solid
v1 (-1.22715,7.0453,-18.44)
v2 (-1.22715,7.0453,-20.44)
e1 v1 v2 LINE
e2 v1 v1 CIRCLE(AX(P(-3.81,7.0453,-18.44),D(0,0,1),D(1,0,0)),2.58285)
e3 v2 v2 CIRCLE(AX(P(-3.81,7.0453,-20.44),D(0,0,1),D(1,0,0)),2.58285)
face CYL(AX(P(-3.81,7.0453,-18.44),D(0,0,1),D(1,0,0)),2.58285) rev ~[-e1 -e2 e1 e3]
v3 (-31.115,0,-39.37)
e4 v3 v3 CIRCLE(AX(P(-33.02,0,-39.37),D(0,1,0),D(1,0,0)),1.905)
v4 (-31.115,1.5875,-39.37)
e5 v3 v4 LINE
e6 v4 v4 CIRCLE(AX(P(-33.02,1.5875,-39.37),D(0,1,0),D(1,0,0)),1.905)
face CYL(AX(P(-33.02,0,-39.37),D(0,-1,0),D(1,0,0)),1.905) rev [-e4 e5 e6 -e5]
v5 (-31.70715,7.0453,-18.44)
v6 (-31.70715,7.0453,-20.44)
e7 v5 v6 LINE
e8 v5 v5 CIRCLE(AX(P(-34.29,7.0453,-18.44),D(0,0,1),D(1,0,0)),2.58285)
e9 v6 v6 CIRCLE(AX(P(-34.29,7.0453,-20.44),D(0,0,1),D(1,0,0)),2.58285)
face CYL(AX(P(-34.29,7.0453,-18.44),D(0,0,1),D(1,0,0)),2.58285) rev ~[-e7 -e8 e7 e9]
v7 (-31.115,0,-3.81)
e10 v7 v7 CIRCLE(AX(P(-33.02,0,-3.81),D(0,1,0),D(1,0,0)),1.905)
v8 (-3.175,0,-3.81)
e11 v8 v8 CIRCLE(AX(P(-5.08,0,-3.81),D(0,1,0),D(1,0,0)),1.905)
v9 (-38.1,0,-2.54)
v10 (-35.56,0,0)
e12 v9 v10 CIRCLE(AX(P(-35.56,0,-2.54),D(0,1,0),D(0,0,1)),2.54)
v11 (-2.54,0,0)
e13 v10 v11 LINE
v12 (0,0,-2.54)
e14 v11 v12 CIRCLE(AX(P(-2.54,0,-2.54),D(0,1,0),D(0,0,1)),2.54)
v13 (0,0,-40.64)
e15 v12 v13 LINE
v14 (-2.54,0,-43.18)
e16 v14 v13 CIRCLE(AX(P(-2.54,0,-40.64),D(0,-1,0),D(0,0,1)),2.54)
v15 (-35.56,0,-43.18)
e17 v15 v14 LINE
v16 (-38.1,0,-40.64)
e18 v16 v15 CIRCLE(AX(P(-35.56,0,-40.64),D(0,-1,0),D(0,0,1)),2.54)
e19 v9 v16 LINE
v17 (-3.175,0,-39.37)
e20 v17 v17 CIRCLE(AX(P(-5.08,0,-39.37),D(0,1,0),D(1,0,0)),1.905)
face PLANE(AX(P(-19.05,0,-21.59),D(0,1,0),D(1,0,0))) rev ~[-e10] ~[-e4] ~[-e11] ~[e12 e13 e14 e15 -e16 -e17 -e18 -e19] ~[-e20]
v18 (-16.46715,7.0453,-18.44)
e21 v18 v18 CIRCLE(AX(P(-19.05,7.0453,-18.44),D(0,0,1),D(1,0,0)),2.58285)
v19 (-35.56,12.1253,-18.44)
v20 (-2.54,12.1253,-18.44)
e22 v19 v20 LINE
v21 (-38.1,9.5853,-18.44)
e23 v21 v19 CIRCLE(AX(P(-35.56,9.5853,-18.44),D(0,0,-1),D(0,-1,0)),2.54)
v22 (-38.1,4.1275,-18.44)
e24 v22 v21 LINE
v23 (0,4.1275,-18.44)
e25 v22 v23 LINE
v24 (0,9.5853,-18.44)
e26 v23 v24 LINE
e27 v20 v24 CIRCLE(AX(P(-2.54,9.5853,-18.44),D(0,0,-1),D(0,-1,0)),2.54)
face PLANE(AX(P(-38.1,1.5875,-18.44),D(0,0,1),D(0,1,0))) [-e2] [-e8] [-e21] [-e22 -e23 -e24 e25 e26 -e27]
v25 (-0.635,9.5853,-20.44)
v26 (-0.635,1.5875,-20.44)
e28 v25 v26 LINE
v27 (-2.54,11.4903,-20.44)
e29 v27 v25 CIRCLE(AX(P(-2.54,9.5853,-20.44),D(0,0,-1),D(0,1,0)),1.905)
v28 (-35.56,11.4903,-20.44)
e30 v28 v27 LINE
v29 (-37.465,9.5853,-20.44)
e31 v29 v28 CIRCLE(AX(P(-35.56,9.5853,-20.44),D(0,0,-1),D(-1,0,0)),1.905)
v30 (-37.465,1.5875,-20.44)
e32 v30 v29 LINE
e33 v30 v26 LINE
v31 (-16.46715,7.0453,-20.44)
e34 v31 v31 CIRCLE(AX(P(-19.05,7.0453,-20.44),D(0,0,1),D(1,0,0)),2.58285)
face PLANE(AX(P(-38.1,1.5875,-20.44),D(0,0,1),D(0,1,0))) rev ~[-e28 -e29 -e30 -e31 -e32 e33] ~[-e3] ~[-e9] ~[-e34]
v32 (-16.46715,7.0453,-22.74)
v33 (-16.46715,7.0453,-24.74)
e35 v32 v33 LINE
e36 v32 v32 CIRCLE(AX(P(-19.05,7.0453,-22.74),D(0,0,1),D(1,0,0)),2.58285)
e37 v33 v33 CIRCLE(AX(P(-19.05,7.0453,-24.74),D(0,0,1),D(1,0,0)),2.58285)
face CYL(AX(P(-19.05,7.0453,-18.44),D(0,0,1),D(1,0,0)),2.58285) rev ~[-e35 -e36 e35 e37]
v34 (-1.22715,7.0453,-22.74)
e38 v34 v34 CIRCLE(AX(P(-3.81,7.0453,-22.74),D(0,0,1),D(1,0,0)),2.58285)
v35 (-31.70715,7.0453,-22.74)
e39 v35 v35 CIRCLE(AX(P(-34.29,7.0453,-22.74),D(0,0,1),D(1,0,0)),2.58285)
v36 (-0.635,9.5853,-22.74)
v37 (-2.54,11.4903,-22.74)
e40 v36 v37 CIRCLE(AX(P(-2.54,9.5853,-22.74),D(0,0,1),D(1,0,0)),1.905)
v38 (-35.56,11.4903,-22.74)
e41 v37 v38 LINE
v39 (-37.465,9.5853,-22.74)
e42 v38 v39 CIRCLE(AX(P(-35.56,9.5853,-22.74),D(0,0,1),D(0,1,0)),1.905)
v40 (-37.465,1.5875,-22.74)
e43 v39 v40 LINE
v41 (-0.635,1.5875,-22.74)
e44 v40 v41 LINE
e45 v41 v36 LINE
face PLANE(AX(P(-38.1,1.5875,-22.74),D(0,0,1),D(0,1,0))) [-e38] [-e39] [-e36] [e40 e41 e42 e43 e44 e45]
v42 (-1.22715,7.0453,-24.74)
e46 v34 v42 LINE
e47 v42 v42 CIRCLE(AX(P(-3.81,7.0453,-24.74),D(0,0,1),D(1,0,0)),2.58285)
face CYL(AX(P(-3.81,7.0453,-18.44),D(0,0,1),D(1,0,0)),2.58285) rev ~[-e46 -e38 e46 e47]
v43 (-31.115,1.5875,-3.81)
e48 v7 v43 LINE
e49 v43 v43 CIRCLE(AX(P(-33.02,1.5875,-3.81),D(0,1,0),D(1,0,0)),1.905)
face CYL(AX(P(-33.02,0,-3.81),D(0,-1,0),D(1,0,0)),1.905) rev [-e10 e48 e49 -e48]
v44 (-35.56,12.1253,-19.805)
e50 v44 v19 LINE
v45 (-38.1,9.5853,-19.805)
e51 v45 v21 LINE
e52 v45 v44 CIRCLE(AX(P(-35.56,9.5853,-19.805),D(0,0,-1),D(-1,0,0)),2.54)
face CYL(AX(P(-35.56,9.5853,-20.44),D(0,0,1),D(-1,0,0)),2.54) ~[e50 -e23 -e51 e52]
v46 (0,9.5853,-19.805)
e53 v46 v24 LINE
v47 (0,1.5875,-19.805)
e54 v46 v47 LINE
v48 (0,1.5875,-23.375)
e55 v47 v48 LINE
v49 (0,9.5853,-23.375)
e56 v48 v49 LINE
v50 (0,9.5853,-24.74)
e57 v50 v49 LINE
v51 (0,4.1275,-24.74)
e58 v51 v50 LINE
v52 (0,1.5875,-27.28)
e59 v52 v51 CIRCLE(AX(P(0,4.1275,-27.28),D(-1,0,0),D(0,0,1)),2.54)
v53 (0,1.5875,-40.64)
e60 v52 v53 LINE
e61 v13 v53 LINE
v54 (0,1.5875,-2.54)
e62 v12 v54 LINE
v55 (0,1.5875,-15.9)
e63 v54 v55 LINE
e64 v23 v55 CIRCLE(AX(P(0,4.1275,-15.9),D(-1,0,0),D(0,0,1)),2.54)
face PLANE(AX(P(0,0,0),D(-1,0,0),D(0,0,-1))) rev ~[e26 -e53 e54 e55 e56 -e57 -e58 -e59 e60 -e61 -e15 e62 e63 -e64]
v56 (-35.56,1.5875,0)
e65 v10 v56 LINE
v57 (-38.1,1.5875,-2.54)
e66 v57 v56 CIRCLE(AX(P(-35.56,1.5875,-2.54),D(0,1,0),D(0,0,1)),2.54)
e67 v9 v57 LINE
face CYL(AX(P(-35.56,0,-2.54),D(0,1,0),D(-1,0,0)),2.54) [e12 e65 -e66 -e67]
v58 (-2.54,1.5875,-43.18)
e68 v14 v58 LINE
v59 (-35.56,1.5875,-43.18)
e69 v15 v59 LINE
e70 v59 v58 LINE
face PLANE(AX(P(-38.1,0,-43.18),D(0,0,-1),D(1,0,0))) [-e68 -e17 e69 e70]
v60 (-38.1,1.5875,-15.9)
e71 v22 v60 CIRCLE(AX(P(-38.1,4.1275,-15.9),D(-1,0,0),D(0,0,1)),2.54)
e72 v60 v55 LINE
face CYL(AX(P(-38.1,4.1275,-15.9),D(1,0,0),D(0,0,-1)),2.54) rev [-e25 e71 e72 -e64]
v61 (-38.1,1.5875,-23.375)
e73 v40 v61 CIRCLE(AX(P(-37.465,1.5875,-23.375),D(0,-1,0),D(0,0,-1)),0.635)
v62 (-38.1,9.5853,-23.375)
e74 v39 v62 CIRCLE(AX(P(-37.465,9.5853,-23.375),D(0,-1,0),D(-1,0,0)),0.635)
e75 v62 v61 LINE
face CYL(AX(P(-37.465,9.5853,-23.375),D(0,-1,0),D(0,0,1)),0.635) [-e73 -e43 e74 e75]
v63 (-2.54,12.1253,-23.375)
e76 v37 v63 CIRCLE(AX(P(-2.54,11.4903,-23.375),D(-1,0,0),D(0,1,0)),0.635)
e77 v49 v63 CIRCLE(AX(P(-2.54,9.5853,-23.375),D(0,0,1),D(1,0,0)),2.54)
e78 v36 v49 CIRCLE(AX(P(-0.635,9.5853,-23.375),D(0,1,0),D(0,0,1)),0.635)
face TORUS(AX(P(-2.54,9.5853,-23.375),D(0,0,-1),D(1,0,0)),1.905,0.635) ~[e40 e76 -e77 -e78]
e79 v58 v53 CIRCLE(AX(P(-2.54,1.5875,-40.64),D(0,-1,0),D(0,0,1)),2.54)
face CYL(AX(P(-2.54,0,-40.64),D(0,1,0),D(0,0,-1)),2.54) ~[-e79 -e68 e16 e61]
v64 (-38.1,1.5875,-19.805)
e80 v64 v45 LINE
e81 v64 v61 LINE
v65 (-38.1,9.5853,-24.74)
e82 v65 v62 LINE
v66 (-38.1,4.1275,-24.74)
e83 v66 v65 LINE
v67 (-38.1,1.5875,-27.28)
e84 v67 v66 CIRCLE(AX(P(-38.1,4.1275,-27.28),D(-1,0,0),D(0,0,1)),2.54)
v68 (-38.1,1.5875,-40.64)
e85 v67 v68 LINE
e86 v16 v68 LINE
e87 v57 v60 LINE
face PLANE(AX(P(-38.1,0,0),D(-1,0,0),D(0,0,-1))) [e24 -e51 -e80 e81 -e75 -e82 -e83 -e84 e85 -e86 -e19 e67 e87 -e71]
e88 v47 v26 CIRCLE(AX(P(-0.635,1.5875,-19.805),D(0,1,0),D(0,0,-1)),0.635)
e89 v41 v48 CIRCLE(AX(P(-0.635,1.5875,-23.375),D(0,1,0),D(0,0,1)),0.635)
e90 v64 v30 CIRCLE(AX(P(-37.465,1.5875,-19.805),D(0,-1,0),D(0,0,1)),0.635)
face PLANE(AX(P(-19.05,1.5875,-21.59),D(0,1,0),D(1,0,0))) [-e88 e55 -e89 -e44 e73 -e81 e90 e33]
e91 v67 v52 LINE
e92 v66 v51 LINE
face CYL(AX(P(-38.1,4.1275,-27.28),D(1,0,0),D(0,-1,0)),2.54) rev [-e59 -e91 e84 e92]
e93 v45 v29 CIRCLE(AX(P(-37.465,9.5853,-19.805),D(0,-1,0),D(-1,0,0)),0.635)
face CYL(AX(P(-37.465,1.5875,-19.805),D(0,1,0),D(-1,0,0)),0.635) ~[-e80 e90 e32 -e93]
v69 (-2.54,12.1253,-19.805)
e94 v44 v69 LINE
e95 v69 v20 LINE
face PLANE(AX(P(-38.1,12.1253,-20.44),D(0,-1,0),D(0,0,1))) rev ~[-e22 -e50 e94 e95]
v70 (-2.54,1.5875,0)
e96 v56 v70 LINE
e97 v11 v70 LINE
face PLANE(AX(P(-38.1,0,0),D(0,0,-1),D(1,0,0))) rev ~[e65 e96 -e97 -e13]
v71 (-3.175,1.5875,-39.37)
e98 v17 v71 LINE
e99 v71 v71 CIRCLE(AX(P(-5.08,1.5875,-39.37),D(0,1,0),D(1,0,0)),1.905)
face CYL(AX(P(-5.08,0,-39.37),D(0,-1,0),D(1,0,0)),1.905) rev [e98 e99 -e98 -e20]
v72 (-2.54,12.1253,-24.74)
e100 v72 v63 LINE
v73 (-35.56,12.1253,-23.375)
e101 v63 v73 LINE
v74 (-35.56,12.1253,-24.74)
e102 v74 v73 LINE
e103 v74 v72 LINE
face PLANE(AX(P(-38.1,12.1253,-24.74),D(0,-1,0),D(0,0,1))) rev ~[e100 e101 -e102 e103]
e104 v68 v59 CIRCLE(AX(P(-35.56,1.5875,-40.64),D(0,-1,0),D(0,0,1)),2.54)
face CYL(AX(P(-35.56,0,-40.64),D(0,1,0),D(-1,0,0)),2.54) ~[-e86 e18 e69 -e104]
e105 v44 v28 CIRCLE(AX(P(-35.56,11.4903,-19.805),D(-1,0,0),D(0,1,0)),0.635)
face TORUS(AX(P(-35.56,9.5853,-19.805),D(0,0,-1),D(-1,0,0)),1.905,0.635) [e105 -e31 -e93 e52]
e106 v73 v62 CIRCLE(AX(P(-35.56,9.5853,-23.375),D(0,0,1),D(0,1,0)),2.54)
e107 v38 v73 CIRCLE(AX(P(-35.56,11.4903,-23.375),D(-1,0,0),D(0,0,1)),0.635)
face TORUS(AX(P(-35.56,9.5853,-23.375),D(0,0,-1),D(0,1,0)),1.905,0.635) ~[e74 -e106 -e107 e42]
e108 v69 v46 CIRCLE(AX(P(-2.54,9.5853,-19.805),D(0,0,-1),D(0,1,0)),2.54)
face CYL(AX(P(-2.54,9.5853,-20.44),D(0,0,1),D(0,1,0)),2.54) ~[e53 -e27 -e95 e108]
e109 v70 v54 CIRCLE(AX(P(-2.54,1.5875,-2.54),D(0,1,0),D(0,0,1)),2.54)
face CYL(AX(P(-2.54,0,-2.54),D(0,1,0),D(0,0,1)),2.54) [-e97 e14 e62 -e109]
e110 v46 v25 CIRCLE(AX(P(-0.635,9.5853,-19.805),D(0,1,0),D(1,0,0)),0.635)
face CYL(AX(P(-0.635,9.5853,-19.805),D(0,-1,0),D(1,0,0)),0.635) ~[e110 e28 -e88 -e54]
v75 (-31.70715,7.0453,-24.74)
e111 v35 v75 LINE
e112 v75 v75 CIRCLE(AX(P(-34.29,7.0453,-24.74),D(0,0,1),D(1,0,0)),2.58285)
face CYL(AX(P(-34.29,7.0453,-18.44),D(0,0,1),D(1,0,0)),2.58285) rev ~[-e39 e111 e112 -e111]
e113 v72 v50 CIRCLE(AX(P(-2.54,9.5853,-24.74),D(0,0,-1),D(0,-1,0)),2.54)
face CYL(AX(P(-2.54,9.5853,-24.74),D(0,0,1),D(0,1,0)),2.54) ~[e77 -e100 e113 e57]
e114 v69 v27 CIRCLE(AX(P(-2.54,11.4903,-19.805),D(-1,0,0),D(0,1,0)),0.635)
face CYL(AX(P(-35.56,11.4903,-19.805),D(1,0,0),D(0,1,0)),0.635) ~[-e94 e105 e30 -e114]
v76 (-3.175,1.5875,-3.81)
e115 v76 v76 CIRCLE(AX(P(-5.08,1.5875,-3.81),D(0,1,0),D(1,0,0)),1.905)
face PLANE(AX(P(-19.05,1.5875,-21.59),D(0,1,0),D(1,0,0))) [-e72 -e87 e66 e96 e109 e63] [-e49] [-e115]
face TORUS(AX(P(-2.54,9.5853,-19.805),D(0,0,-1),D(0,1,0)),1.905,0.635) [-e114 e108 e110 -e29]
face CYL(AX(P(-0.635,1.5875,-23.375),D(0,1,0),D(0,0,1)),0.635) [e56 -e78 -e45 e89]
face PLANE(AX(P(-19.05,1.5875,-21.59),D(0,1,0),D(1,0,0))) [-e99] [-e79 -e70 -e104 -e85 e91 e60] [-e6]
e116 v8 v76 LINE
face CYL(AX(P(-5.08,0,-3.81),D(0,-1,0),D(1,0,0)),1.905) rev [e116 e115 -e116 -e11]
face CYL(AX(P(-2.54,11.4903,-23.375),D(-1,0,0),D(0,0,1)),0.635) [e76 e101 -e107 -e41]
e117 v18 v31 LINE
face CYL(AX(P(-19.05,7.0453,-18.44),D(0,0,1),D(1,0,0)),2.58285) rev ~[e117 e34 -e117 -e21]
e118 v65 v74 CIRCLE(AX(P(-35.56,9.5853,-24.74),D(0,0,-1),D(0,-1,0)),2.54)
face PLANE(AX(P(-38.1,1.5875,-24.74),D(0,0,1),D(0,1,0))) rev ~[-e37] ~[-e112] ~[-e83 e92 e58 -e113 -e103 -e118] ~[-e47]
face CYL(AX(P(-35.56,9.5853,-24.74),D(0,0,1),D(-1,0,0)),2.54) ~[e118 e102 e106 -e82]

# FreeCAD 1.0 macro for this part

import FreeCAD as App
import Part
import Sketcher
Q = App.Units.Quantity


def edges_at(feature, points):
    """Names of the edges that pass closest to the given points."""
    edges = feature.Shape.Edges
    near = lambda p: min(range(len(edges)), key=lambda i: edges[i].distToShape(Part.Vertex(*p))[0])
    return sorted({f"Edge{near(p) + 1}" for p in points})


def add_polygon(sketch, points):
    """Adds a closed chain of lines whose ends are joined by coincident constraints."""
    first, n = sketch.GeometryCount, len(points)
    for a, b in zip(points, points[1:] + points[:1]):
        sketch.addGeometry(Part.LineSegment(App.Vector(*a, 0), App.Vector(*b, 0)), False)
    for i in range(n):
        sketch.addConstraint(Sketcher.Constraint("Coincident", first + i, 2, first + (i + 1) % n, 1))

doc = App.newDocument("Part")
body = doc.addObject("PartDesign::Body", "Body")

# Sketch on XZ plane
sketch1 = doc.addObject("Sketcher::SketchObject", "Sketch")
body.addObject(sketch1)
sketch1.AttachmentSupport = (doc.XZ_Plane, [""])
sketch1.MapMode = "FlatFace"
add_polygon(sketch1, [(-38.1, -43.2), (-38.1, 0), (0, 0), (0, -43.2)])  # lines 0-3
sketch1.addGeometry(Part.Circle(App.Vector(-33, -3.8, 0), App.Vector(0, 0, 1), 1.9), False)  # 4
sketch1.addGeometry(Part.Circle(App.Vector(-5.1, -3.8, 0), App.Vector(0, 0, 1), 1.9), False)  # 5
sketch1.addGeometry(Part.Circle(App.Vector(-33, -39.4, 0), App.Vector(0, 0, 1), 1.9), False)  # 6
sketch1.addGeometry(Part.Circle(App.Vector(-5.1, -39.4, 0), App.Vector(0, 0, 1), 1.9), False)  # 7
sketch1.addConstraint([
    Sketcher.Constraint("Vertical", 0),
    Sketcher.Constraint("Horizontal", 1),
    Sketcher.Constraint("Vertical", 2),
    Sketcher.Constraint("Horizontal", 3),
    Sketcher.Constraint("Coincident", 1, 2, -1, 1),
    Sketcher.Constraint("Equal", 4, 5),
    Sketcher.Constraint("Equal", 5, 6),
    Sketcher.Constraint("Equal", 6, 7),
    Sketcher.Constraint("Horizontal", 4, 3, 5, 3),
    Sketcher.Constraint("Horizontal", 6, 3, 7, 3),
    Sketcher.Constraint("Vertical", 4, 3, 6, 3),
    Sketcher.Constraint("Vertical", 5, 3, 7, 3),
    Sketcher.Constraint("Diameter", 4, Q("0.15 in")),
    Sketcher.Constraint("DistanceX", 1, 1, 1, 2, Q("1.5 in")),
    Sketcher.Constraint("DistanceY", 0, 1, 0, 2, Q("1.7 in")),
    Sketcher.Constraint("DistanceX", 4, 3, -1, 1, Q("1.3 in")),
    Sketcher.Constraint("DistanceX", 5, 3, -1, 1, Q("0.2 in")),
    Sketcher.Constraint("DistanceY", 6, 3, 4, 3, Q("1.4 in")),
    Sketcher.Constraint("DistanceY", 4, 3, -1, 1, Q("0.15 in")),
])
pad1 = doc.addObject("PartDesign::Pad", "Pad")
body.addObject(pad1)
pad1.Profile = sketch1
pad1.Length = Q("0.0625 in")
pad1.Reversed = True

# Sketch on YZ plane
sketch2 = doc.addObject("Sketcher::SketchObject", "Sketch001")
body.addObject(sketch2)
sketch2.AttachmentSupport = (doc.YZ_Plane, [""])
sketch2.MapMode = "FlatFace"
sketch2.AttachmentOffset = App.Placement(App.Vector(0, 0, -1.5 * 25.4), App.Rotation())
add_polygon(sketch2, [(12.1, -24.7), (1.6, -24.7), (1.6, -22.7), (12.1, -22.7)])  # lines 0-3
add_polygon(sketch2, [(12.1, -20.4), (1.6, -20.4), (1.6, -18.4), (12.1, -18.4)])  # lines 4-7
sketch2.addConstraint([
    Sketcher.Constraint("Horizontal", 0),
    Sketcher.Constraint("Vertical", 1),
    Sketcher.Constraint("Horizontal", 2),
    Sketcher.Constraint("Vertical", 3),
    Sketcher.Constraint("Horizontal", 4),
    Sketcher.Constraint("Vertical", 5),
    Sketcher.Constraint("Horizontal", 6),
    Sketcher.Constraint("Vertical", 7),
    Sketcher.Constraint("Vertical", 1, 2, 4, 2),
    Sketcher.Constraint("Vertical", 3, 2, 6, 2),
    Sketcher.Constraint("Equal", 3, 5),
    Sketcher.Constraint("DistanceX", -1, 1, 0, 2, Q("0.0625 in")),
    Sketcher.Constraint("DistanceX", 0, 2, 0, 1, Q("10.5378 mm")),
    Sketcher.Constraint("DistanceY", 1, 1, 1, 2, Q("2 mm")),
    Sketcher.Constraint("DistanceY", 0, 2, -1, 1, Q("24.74 mm")),
    Sketcher.Constraint("DistanceY", 4, 2, -1, 1, Q("20.44 mm")),
])
pad2 = doc.addObject("PartDesign::Pad", "Pad001")
body.addObject(pad2)
pad2.Profile = sketch2
pad2.Length = Q("1.5 in")

# Sketch on XY plane
sketch3 = doc.addObject("Sketcher::SketchObject", "Sketch002")
body.addObject(sketch3)
sketch3.AttachmentSupport = (doc.XY_Plane, [""])
sketch3.MapMode = "FlatFace"
sketch3.AttachmentOffset = App.Placement(App.Vector(0, 0, -18.44), App.Rotation())
sketch3.addGeometry([
    Part.Circle(App.Vector(-34.3, 7, 0), App.Vector(0, 0, 1), 2.6),
    Part.Circle(App.Vector(-19.1, 7, 0), App.Vector(0, 0, 1), 2.6),
    Part.Circle(App.Vector(-3.8, 7, 0), App.Vector(0, 0, 1), 2.6),
], False)
sketch3.addConstraint([
    Sketcher.Constraint("Equal", 0, 1),
    Sketcher.Constraint("Equal", 1, 2),
    Sketcher.Constraint("Horizontal", 0, 3, 1, 3),
    Sketcher.Constraint("Horizontal", 1, 3, 2, 3),
    Sketcher.Constraint("DistanceX", 0, 3, 1, 3, Q("0.6 in")),
    Sketcher.Constraint("DistanceX", 1, 3, 2, 3, Q("0.6 in")),
    Sketcher.Constraint("Diameter", 0, Q("5.1657 mm")),
    Sketcher.Constraint("DistanceX", 0, 3, -1, 1, Q("1.35 in")),
    Sketcher.Constraint("DistanceY", -1, 1, 0, 3, Q("7.0453 mm")),
])
pocket1 = doc.addObject("PartDesign::Pocket", "Pocket")
body.addObject(pocket1)
pocket1.Profile = sketch3
pocket1.Type = "ThroughAll"
pocket1.Midplane = True
doc.recompute()

fillet = doc.addObject("PartDesign::Fillet", "Fillet")
body.addObject(fillet)
fillet.Base = (pocket1, edges_at(pocket1, [
    (0, 12.125, -19.44),
    (-38.1, 12.125, -19.44),
    (0, 12.125, -23.74),
    (-38.1, 12.125, -23.74),
]))
fillet.Radius = Q("0.1 in")
doc.recompute()

fillet2 = doc.addObject("PartDesign::Fillet", "Fillet001")
body.addObject(fillet2)
fillet2.Base = (fillet, edges_at(fillet, [(-19.05, 1.587, -18.44), (-19.05, 1.587, -24.74)]))
fillet2.Radius = Q("0.1 in")
doc.recompute()

fillet3 = doc.addObject("PartDesign::Fillet", "Fillet002")
body.addObject(fillet3)
fillet3.Base = (fillet2, edges_at(fillet2, [
    (0, 0.794, 0),
    (-38.1, 0.794, 0),
    (-38.1, 0.794, -43.18),
    (0, 0.794, -43.18),
]))
fillet3.Radius = Q("0.1 in")
doc.recompute()

fillet4 = doc.addObject("PartDesign::Fillet", "Fillet003")
body.addObject(fillet4)
fillet4.Base = (fillet3, edges_at(fillet3, [
    (-38.1, 5.586, -20.44),
    (0, 5.586, -22.74),
    (-19.05, 12.125, -22.74),
    (0, 5.586, -20.44),
    (-38.1, 5.586, -22.74),
    (-37.356, 11.381, -22.74),
    (-0.744, 11.381, -22.74),
    (-19.05, 12.125, -20.44),
    (-37.356, 11.381, -20.44),
    (-0.744, 11.381, -20.44),
]))
fillet4.Radius = Q("0.025 in")

doc.recompute()
